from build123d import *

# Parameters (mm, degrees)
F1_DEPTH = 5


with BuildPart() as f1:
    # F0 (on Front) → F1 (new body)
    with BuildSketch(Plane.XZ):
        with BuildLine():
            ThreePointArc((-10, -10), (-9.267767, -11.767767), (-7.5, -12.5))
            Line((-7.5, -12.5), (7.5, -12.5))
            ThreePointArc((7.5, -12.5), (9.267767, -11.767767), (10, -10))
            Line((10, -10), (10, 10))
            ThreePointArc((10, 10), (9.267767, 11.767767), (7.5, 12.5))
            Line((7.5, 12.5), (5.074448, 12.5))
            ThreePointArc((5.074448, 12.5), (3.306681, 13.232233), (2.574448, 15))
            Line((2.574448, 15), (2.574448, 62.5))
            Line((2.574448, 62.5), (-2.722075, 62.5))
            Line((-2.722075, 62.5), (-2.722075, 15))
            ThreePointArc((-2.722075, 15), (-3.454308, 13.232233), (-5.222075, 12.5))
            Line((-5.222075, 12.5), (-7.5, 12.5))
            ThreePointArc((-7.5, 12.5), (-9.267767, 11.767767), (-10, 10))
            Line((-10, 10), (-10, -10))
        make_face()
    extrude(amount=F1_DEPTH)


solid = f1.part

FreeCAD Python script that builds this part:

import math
import FreeCAD as App
import Part
import Sketcher
from FreeCAD import Vector
Q = App.Units.Quantity

doc = App.newDocument("Part")
body = doc.addObject("PartDesign::Body", "Body")

sketch1 = body.newObject("Sketcher::SketchObject", "Sketch")
sketch1.AttachmentSupport = (doc.getObject("XZ_Plane"), [""])
sketch1.MapMode = "FlatFace"
sketch1.addGeometry([
    Part.ArcOfCircle(Part.Circle(Vector(-7.5, -10, 0), Vector(0, 0, 1), 2.5), math.radians(180), math.radians(270)),
    Part.LineSegment(Vector(-7.5, -12.5, 0), Vector(7.5, -12.5, 0)),
    Part.ArcOfCircle(Part.Circle(Vector(7.5, -10, 0), Vector(0, 0, 1), 2.5), math.radians(-90), math.radians(0)),
    Part.LineSegment(Vector(10, -10, 0), Vector(10, 10, 0)),
    Part.ArcOfCircle(Part.Circle(Vector(7.5, 10, 0), Vector(0, 0, 1), 2.5), math.radians(0), math.radians(90)),
    Part.LineSegment(Vector(7.5, 12.5, 0), Vector(5.1, 12.5, 0)),
    Part.ArcOfCircle(Part.Circle(Vector(5.1, 15, 0), Vector(0, 0, 1), 2.5), math.radians(180), math.radians(270)),
    Part.LineSegment(Vector(2.6, 15, 0), Vector(2.6, 62.5, 0)),
    Part.LineSegment(Vector(2.6, 62.5, 0), Vector(-2.7, 62.5, 0)),
    Part.LineSegment(Vector(-2.7, 62.5, 0), Vector(-2.7, 15, 0)),
    Part.ArcOfCircle(Part.Circle(Vector(-5.2, 15, 0), Vector(0, 0, 1), 2.5), math.radians(-90), math.radians(0)),
    Part.LineSegment(Vector(-5.2, 12.5, 0), Vector(-7.5, 12.5, 0)),
    Part.ArcOfCircle(Part.Circle(Vector(-7.5, 10, 0), Vector(0, 0, 1), 2.5), math.radians(90), math.radians(180)),
    Part.LineSegment(Vector(-10, 10, 0), Vector(-10, -10, 0)),
], False)
sketch1.addConstraint([
    Sketcher.Constraint("Tangent", 0, 2, 1, 1),
    Sketcher.Constraint("Tangent", 1, 2, 2, 1),
    Sketcher.Constraint("Tangent", 2, 2, 3, 1),
    Sketcher.Constraint("Tangent", 3, 2, 4, 1),
    Sketcher.Constraint("Tangent", 4, 2, 5, 1),
    Sketcher.Constraint("Tangent", 5, 2, 6, 2),
    Sketcher.Constraint("Tangent", 6, 1, 7, 1),
    Sketcher.Constraint("Coincident", 7, 2, 8, 1),
    Sketcher.Constraint("Coincident", 8, 2, 9, 1),
    Sketcher.Constraint("Tangent", 9, 2, 10, 2),
    Sketcher.Constraint("Tangent", 10, 1, 11, 1),
    Sketcher.Constraint("Tangent", 11, 2, 12, 1),
    Sketcher.Constraint("Tangent", 12, 2, 13, 1),
    Sketcher.Constraint("Tangent", 13, 2, 0, 1),
    Sketcher.Constraint("Horizontal", 1),
    Sketcher.Constraint("Vertical", 3),
    Sketcher.Constraint("Horizontal", 5),
    Sketcher.Constraint("Vertical", 7),
    Sketcher.Constraint("Horizontal", 8),
    Sketcher.Constraint("Vertical", 9),
    Sketcher.Constraint("Horizontal", 11),
    Sketcher.Constraint("Vertical", 13),
    Sketcher.Constraint("Equal", 0, 2),
    Sketcher.Constraint("Equal", 2, 4),
    Sketcher.Constraint("Equal", 4, 6),
    Sketcher.Constraint("Equal", 6, 10),
    Sketcher.Constraint("Equal", 10, 12),
    Sketcher.Constraint("Symmetric", 0, 3, 4, 3, -1, 1),
    Sketcher.Constraint("Horizontal", 6, 3, 10, 3),
    Sketcher.Constraint("Radius", 0, Q("2.5 mm")),
    Sketcher.Constraint("DistanceX", 1, 1, 1, 2, Q("15 mm")),
    Sketcher.Constraint("DistanceY", 3, 1, 3, 2, Q("20 mm")),
    Sketcher.Constraint("DistanceY", 7, 1, 7, 2, Q("47.5 mm")),
    Sketcher.Constraint("DistanceX", 5, 2, 5, 1, Q("2.425552 mm")),
    Sketcher.Constraint("DistanceX", 8, 2, 8, 1, Q("5.296523 mm")),
])
pad1 = body.newObject("PartDesign::Pad", "Pad")
pad1.Profile = sketch1
pad1.Length = 5

doc.recompute()
